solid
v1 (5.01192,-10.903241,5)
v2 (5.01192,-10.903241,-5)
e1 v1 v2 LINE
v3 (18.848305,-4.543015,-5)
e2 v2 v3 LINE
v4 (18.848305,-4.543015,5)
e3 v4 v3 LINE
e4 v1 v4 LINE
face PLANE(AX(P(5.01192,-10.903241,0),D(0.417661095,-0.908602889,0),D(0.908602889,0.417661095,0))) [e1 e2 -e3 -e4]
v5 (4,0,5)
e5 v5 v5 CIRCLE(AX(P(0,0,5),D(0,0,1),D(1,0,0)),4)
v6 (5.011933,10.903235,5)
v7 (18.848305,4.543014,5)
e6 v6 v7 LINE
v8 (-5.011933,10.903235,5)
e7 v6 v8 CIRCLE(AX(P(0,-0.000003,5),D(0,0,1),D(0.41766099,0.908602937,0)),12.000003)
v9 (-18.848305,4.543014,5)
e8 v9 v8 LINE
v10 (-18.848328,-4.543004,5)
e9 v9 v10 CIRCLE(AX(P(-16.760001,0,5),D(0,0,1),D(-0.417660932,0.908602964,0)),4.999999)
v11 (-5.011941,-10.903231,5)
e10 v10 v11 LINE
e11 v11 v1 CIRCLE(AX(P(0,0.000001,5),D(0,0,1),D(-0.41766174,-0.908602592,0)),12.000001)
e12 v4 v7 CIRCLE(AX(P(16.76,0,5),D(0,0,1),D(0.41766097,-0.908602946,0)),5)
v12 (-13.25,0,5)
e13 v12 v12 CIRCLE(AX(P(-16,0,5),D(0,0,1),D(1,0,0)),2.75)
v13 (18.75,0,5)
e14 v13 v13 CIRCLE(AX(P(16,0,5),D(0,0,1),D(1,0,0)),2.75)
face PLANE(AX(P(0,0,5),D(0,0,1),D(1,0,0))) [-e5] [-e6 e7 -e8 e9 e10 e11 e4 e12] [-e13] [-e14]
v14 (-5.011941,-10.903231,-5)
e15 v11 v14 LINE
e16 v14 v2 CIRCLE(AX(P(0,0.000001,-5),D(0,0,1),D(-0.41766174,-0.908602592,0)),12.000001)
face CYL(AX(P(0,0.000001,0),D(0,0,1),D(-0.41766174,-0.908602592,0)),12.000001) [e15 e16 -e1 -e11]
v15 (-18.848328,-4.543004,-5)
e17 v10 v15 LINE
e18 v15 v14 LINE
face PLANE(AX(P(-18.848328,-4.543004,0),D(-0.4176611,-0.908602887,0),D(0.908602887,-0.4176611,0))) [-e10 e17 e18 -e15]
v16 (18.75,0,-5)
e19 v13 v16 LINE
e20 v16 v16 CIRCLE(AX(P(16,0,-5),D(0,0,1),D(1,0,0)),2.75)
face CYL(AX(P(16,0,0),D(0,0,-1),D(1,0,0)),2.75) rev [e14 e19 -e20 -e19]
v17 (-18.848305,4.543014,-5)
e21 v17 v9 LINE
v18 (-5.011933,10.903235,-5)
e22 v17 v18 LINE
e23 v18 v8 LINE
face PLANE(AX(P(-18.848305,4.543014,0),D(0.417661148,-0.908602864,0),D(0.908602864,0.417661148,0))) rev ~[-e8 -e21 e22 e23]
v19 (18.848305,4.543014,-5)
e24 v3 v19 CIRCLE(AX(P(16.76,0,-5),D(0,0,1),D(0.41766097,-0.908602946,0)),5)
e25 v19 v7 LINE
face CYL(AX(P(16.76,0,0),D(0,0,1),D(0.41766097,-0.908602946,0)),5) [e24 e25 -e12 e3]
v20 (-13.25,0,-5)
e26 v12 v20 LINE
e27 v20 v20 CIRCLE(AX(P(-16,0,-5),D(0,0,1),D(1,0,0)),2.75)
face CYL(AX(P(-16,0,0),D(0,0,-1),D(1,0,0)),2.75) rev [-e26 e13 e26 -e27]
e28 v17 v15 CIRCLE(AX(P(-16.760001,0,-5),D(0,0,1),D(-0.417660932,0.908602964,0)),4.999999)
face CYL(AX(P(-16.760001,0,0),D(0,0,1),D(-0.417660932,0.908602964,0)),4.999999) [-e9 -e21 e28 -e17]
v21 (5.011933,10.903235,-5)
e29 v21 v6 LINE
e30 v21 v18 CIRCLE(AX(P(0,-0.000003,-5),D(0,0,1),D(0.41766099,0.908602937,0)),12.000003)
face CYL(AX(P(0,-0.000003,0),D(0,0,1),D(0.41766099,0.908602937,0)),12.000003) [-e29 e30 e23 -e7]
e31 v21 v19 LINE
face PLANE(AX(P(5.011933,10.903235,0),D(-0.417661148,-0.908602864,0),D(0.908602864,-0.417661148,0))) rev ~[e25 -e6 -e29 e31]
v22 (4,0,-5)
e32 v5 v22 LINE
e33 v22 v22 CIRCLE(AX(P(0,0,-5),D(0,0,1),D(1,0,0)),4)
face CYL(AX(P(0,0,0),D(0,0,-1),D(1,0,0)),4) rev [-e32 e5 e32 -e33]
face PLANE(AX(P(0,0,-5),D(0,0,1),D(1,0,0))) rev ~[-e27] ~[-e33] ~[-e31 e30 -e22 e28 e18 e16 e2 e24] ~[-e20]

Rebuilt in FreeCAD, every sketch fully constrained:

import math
import FreeCAD as App
import Part
import Sketcher

V = App.Vector

doc = App.newDocument("Part")
body = doc.addObject("PartDesign::Body", "Body")

sketch1 = body.newObject("Sketcher::SketchObject", "Sketch")
sketch1.AttachmentSupport = (doc.getObject("XY_Plane"), [""])
sketch1.MapMode = "FlatFace"
sketch1.addGeometry([
    Part.ArcOfCircle(Part.Circle(V(16.8, 0, 0), V(0, 0, 1), 5), math.radians(-65), math.radians(65)),
    Part.LineSegment(V(18.8, 4.5, 0), V(5, 10.9, 0)),
    Part.ArcOfCircle(Part.Circle(V(0, 0, 0), V(0, 0, 1), 12), math.radians(65), math.radians(115)),
    Part.LineSegment(V(-5, 10.9, 0), V(-18.8, 4.5, 0)),
    Part.ArcOfCircle(Part.Circle(V(-16.8, 0, 0), V(0, 0, 1), 5), math.radians(115), math.radians(245)),
    Part.LineSegment(V(-18.8, -4.5, 0), V(-5, -10.9, 0)),
    Part.ArcOfCircle(Part.Circle(V(0, 0, 0), V(0, 0, 1), 12), math.radians(-115), math.radians(-65)),
    Part.LineSegment(V(5, -10.9, 0), V(18.8, -4.5, 0)),
    Part.Circle(V(-16, 0, 0), V(0, 0, 1), 2.8),
    Part.Circle(V(0, 0, 0), V(0, 0, 1), 4),
    Part.Circle(V(16, 0, 0), V(0, 0, 1), 2.8),
], False)
sketch1.addConstraint([
    Sketcher.Constraint("Tangent", 0, 2, 1, 1),
    Sketcher.Constraint("Tangent", 1, 2, 2, 1),
    Sketcher.Constraint("Tangent", 2, 2, 3, 1),
    Sketcher.Constraint("Tangent", 3, 2, 4, 1),
    Sketcher.Constraint("Coincident", 4, 2, 5, 1),
    Sketcher.Constraint("Tangent", 5, 2, 6, 1),
    Sketcher.Constraint("Tangent", 6, 2, 7, 1),
    Sketcher.Constraint("Tangent", 7, 2, 0, 1),
    Sketcher.Constraint("Coincident", 2, 3, -1, 1),
    Sketcher.Constraint("Coincident", 6, 3, -1, 1),
    Sketcher.Constraint("Coincident", 9, 3, -1, 1),
    Sketcher.Constraint("Equal", 0, 4),
    Sketcher.Constraint("Equal", 2, 6),
    Sketcher.Constraint("Equal", 8, 10),
    Sketcher.Constraint("Symmetric", 0, 3, 4, 3, -1, 1),
    Sketcher.Constraint("Symmetric", 8, 3, 10, 3, -1, 1),
    Sketcher.Constraint("PointOnObject", 0, 3, -1),
    Sketcher.Constraint("PointOnObject", 8, 3, -1),
    Sketcher.Constraint("Diameter", 9, 8.0),
    Sketcher.Constraint("Radius", 0, 5.0),
    Sketcher.Constraint("Radius", 6, 12.000001),
    Sketcher.Constraint("Diameter", 8, 5.5),
    Sketcher.Constraint("DistanceX", 8, 3, -1, 1, 16.0),
    Sketcher.Constraint("DistanceX", -1, 1, 0, 3, 16.76),
    Sketcher.Constraint("DistanceY", 4, 2, 2, 3, 4.543001),
])
pad1 = body.newObject("PartDesign::Pad", "Pad")
pad1.Profile = sketch1
pad1.Length = 10
pad1.Midplane = True

doc.recompute()
